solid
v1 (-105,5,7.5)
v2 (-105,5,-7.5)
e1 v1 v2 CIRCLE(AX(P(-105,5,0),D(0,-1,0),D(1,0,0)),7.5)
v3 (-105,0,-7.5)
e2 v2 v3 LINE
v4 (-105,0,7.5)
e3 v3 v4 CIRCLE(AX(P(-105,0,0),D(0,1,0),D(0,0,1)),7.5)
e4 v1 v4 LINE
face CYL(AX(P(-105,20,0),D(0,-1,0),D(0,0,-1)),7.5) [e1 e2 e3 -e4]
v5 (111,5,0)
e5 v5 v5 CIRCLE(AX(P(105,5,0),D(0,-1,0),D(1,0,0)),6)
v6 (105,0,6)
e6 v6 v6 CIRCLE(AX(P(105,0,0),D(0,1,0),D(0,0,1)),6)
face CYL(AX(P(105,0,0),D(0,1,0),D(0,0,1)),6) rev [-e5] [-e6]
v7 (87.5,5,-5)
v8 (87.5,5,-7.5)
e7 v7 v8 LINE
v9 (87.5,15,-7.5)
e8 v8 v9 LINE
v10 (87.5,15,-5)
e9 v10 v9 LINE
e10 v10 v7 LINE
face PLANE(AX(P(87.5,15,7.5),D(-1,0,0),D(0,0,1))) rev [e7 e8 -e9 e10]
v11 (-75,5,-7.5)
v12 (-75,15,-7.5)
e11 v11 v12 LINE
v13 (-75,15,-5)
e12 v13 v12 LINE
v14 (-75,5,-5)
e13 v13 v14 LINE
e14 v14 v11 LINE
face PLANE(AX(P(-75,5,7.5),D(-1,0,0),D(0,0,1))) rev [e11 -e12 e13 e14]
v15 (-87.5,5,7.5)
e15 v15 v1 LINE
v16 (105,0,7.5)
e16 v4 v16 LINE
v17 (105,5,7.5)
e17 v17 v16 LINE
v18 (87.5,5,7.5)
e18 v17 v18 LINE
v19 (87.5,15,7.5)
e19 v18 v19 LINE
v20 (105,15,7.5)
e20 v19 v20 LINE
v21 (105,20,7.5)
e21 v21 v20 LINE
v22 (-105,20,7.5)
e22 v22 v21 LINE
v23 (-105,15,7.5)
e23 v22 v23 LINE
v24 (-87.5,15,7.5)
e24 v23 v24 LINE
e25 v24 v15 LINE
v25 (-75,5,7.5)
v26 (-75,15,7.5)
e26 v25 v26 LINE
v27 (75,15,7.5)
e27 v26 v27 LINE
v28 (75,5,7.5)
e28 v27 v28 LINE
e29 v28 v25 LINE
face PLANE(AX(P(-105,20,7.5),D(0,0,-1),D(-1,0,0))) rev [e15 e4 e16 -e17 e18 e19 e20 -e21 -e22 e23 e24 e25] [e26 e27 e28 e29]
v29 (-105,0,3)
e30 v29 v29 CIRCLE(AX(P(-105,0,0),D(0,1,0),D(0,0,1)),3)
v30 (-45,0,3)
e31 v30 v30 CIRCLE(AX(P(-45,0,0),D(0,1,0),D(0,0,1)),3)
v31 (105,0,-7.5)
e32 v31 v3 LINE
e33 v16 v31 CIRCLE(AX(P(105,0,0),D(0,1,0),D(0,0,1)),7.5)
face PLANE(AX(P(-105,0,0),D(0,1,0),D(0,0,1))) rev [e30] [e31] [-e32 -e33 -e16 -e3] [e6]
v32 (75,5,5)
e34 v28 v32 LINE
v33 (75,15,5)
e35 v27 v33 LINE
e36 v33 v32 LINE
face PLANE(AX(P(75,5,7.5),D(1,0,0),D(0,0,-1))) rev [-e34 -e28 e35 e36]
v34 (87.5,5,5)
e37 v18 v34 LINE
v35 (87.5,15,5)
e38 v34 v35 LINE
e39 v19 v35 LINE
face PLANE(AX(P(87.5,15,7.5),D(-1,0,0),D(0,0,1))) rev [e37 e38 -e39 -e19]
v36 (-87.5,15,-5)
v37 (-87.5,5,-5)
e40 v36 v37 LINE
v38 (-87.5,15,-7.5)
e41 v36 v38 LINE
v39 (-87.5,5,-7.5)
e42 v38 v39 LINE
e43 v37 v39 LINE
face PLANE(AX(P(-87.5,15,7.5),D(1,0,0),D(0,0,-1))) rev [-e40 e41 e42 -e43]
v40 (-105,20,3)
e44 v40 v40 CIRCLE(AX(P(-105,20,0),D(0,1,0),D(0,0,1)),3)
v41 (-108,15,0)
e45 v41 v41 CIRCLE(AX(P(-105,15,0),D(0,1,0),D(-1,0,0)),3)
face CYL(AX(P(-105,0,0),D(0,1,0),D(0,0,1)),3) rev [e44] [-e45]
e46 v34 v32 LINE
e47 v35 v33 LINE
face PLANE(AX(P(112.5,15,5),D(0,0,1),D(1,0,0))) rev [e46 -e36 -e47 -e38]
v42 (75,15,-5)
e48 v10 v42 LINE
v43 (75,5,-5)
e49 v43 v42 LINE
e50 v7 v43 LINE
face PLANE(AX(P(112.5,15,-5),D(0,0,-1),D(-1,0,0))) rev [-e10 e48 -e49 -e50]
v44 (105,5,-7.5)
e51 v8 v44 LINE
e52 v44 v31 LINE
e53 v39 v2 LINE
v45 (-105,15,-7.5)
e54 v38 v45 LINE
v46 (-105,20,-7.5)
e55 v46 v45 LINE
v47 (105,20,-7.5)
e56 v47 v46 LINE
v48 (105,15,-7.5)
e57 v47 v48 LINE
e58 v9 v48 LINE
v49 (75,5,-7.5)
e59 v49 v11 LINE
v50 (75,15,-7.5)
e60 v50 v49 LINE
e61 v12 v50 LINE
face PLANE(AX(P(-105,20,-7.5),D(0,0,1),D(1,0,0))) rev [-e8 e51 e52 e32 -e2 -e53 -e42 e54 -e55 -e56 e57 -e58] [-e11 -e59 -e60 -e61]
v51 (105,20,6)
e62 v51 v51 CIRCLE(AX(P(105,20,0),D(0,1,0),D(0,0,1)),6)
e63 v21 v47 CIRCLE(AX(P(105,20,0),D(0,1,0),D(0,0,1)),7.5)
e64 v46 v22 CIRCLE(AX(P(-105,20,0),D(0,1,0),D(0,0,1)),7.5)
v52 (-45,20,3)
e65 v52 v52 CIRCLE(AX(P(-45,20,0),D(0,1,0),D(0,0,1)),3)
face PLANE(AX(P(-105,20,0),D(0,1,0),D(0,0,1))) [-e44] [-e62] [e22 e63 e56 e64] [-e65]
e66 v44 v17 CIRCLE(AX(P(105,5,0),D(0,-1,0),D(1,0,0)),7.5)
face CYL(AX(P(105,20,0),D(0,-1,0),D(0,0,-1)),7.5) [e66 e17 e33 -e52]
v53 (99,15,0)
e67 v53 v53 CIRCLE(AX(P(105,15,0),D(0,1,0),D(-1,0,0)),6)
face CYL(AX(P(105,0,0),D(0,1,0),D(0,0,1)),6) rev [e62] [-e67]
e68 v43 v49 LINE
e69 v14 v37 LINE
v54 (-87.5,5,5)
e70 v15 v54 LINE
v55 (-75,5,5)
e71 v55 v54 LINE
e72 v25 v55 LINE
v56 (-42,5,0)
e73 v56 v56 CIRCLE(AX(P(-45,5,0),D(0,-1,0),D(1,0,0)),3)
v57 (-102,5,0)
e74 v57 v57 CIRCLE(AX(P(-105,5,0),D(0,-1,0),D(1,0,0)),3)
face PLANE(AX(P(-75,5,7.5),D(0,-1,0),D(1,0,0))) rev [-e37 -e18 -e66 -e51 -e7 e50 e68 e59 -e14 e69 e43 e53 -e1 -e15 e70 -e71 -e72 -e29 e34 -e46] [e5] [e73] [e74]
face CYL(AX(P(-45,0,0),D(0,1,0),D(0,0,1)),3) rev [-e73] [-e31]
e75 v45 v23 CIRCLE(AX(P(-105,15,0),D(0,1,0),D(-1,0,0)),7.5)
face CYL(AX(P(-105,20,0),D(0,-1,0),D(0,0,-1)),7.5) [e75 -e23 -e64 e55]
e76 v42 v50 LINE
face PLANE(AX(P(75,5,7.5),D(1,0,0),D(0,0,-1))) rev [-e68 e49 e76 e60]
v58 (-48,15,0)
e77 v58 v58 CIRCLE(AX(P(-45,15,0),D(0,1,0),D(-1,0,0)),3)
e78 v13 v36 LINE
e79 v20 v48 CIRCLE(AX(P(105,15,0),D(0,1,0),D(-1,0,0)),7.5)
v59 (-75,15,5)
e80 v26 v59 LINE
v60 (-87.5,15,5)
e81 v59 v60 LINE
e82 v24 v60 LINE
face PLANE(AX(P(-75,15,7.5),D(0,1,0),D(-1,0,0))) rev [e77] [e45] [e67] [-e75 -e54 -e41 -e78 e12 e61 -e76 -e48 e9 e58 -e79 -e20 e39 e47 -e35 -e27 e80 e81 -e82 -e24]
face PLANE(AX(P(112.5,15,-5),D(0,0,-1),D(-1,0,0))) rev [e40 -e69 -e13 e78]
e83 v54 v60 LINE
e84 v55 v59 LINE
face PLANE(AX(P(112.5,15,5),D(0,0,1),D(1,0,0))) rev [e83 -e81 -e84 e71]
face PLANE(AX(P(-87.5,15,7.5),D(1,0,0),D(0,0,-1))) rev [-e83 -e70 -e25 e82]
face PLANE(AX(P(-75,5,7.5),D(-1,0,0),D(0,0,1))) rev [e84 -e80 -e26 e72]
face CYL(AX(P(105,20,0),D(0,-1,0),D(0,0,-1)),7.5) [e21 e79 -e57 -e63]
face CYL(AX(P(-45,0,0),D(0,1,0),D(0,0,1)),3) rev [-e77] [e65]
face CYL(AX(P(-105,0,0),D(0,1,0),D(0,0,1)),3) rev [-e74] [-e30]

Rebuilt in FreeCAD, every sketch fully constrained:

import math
import FreeCAD as App
import Part
import Sketcher

doc = App.newDocument("Part")
body = doc.addObject("PartDesign::Body", "Body")

# Sketch on XZ plane
sketch1 = doc.addObject("Sketcher::SketchObject", "Sketch")
body.addObject(sketch1)
sketch1.AttachmentSupport = (doc.XZ_Plane, [""])
sketch1.MapMode = "FlatFace"
sketch1.addGeometry(Part.LineSegment(App.Vector(105, -8, 0), App.Vector(-105, -8, 0)), False)
sketch1.addGeometry(Part.ArcOfCircle(Part.Circle(App.Vector(-105, 0, 0), App.Vector(0, 0, 1), 8), math.radians(90), math.radians(270)), False)
sketch1.addGeometry(Part.LineSegment(App.Vector(-105, 8, 0), App.Vector(105, 8, 0)), False)
sketch1.addGeometry(Part.ArcOfCircle(Part.Circle(App.Vector(105, 0, 0), App.Vector(0, 0, 1), 8), math.radians(-90), math.radians(90)), False)
sketch1.addConstraint(Sketcher.Constraint("Tangent", 0, 2, 1, 2))
sketch1.addConstraint(Sketcher.Constraint("Tangent", 1, 1, 2, 1))
sketch1.addConstraint(Sketcher.Constraint("Tangent", 2, 2, 3, 2))
sketch1.addConstraint(Sketcher.Constraint("Tangent", 3, 1, 0, 1))
sketch1.addConstraint(Sketcher.Constraint("Horizontal", 0))
sketch1.addConstraint(Sketcher.Constraint("Horizontal", 2))
sketch1.addConstraint(Sketcher.Constraint("Symmetric", 1, 3, 3, 3, -1, 1))
sketch1.addConstraint(Sketcher.Constraint("Radius", 1, 7.5))
sketch1.addConstraint(Sketcher.Constraint("DistanceX", 0, 2, 0, 1, 210.0))
pad1 = doc.addObject("PartDesign::Pad", "Pad")
body.addObject(pad1)
pad1.Profile = sketch1
pad1.Length = 20
pad1.Reversed = True

# Sketch on XY plane
sketch2 = doc.addObject("Sketcher::SketchObject", "Sketch001")
body.addObject(sketch2)
sketch2.AttachmentSupport = (doc.XY_Plane, [""])
sketch2.MapMode = "FlatFace"
sketch2.AttachmentOffset = App.Placement(App.Vector(0, 0, -7.5), App.Rotation())
sketch2.addGeometry(Part.LineSegment(App.Vector(75, 15, 0), App.Vector(75, 5, 0)), False)
sketch2.addGeometry(Part.LineSegment(App.Vector(75, 5, 0), App.Vector(-75, 5, 0)), False)
sketch2.addGeometry(Part.LineSegment(App.Vector(-75, 5, 0), App.Vector(-75, 15, 0)), False)
sketch2.addGeometry(Part.LineSegment(App.Vector(-75, 15, 0), App.Vector(75, 15, 0)), False)
sketch2.addConstraint(Sketcher.Constraint("Coincident", 0, 2, 1, 1))
sketch2.addConstraint(Sketcher.Constraint("Coincident", 1, 2, 2, 1))
sketch2.addConstraint(Sketcher.Constraint("Coincident", 2, 2, 3, 1))
sketch2.addConstraint(Sketcher.Constraint("Coincident", 3, 2, 0, 1))
sketch2.addConstraint(Sketcher.Constraint("Vertical", 0))
sketch2.addConstraint(Sketcher.Constraint("Horizontal", 1))
sketch2.addConstraint(Sketcher.Constraint("Vertical", 2))
sketch2.addConstraint(Sketcher.Constraint("Horizontal", 3))
sketch2.addConstraint(Sketcher.Constraint("DistanceX", 1, 2, 1, 1, 150.0))
sketch2.addConstraint(Sketcher.Constraint("DistanceY", 0, 2, 0, 1, 10.0))
sketch2.addConstraint(Sketcher.Constraint("DistanceX", -1, 1, 0, 2, 75.0))
sketch2.addConstraint(Sketcher.Constraint("DistanceY", -1, 1, 0, 2, 5.0))
pocket1 = doc.addObject("PartDesign::Pocket", "Pocket")
body.addObject(pocket1)
pocket1.Profile = sketch2
pocket1.Type = "ThroughAll"
pocket1.Reversed = True

# Sketch on XY plane
sketch3 = doc.addObject("Sketcher::SketchObject", "Sketch002")
body.addObject(sketch3)
sketch3.AttachmentSupport = (doc.XY_Plane, [""])
sketch3.MapMode = "FlatFace"
sketch3.AttachmentOffset = App.Placement(App.Vector(0, 0, -7.5), App.Rotation())
sketch3.addGeometry(Part.LineSegment(App.Vector(-88, 15, 0), App.Vector(-88, 5, 0)), False)
sketch3.addGeometry(Part.LineSegment(App.Vector(-88, 5, 0), App.Vector(-112, 5, 0)), False)
sketch3.addGeometry(Part.LineSegment(App.Vector(-112, 5, 0), App.Vector(-112, 15, 0)), False)
sketch3.addGeometry(Part.LineSegment(App.Vector(-112, 15, 0), App.Vector(-88, 15, 0)), False)
sketch3.addGeometry(Part.LineSegment(App.Vector(112, 15, 0), App.Vector(112, 5, 0)), False)
sketch3.addGeometry(Part.LineSegment(App.Vector(112, 5, 0), App.Vector(88, 5, 0)), False)
sketch3.addGeometry(Part.LineSegment(App.Vector(88, 5, 0), App.Vector(88, 15, 0)), False)
sketch3.addGeometry(Part.LineSegment(App.Vector(88, 15, 0), App.Vector(112, 15, 0)), False)
sketch3.addConstraint(Sketcher.Constraint("Coincident", 0, 2, 1, 1))
sketch3.addConstraint(Sketcher.Constraint("Coincident", 1, 2, 2, 1))
sketch3.addConstraint(Sketcher.Constraint("Coincident", 2, 2, 3, 1))
sketch3.addConstraint(Sketcher.Constraint("Coincident", 3, 2, 0, 1))
sketch3.addConstraint(Sketcher.Constraint("Coincident", 4, 2, 5, 1))
sketch3.addConstraint(Sketcher.Constraint("Coincident", 5, 2, 6, 1))
sketch3.addConstraint(Sketcher.Constraint("Coincident", 6, 2, 7, 1))
sketch3.addConstraint(Sketcher.Constraint("Coincident", 7, 2, 4, 1))
sketch3.addConstraint(Sketcher.Constraint("Vertical", 0))
sketch3.addConstraint(Sketcher.Constraint("Horizontal", 1))
sketch3.addConstraint(Sketcher.Constraint("Vertical", 2))
sketch3.addConstraint(Sketcher.Constraint("Horizontal", 3))
sketch3.addConstraint(Sketcher.Constraint("Vertical", 4))
sketch3.addConstraint(Sketcher.Constraint("Horizontal", 5))
sketch3.addConstraint(Sketcher.Constraint("Vertical", 6))
sketch3.addConstraint(Sketcher.Constraint("Horizontal", 7))
sketch3.addConstraint(Sketcher.Constraint("Symmetric", 1, 2, 4, 2, -2))
sketch3.addConstraint(Sketcher.Constraint("Symmetric", 3, 2, 6, 2, -2))
sketch3.addConstraint(Sketcher.Constraint("DistanceX", 1, 2, 1, 1, 25.0))
sketch3.addConstraint(Sketcher.Constraint("DistanceY", 0, 2, 0, 1, 10.0))
sketch3.addConstraint(Sketcher.Constraint("DistanceY", -1, 1, 0, 2, 5.0))
sketch3.addConstraint(Sketcher.Constraint("DistanceX", 0, 2, 4, 2, 200.0))
pocket2 = doc.addObject("PartDesign::Pocket", "Pocket001")
body.addObject(pocket2)
pocket2.Profile = sketch3
pocket2.Type = "ThroughAll"
pocket2.Reversed = True

# Sketch on YZ plane
sketch4 = doc.addObject("Sketcher::SketchObject", "Sketch003")
body.addObject(sketch4)
sketch4.AttachmentSupport = (doc.YZ_Plane, [""])
sketch4.MapMode = "FlatFace"
sketch4.AttachmentOffset = App.Placement(App.Vector(0, 0, -87.5), App.Rotation())
sketch4.addGeometry(Part.LineSegment(App.Vector(15, -5, 0), App.Vector(5, -5, 0)), False)
sketch4.addGeometry(Part.LineSegment(App.Vector(5, -5, 0), App.Vector(5, 5, 0)), False)
sketch4.addGeometry(Part.LineSegment(App.Vector(5, 5, 0), App.Vector(15, 5, 0)), False)
sketch4.addGeometry(Part.LineSegment(App.Vector(15, 5, 0), App.Vector(15, -5, 0)), False)
sketch4.addConstraint(Sketcher.Constraint("Coincident", 0, 2, 1, 1))
sketch4.addConstraint(Sketcher.Constraint("Coincident", 1, 2, 2, 1))
sketch4.addConstraint(Sketcher.Constraint("Coincident", 2, 2, 3, 1))
sketch4.addConstraint(Sketcher.Constraint("Coincident", 3, 2, 0, 1))
sketch4.addConstraint(Sketcher.Constraint("Horizontal", 0))
sketch4.addConstraint(Sketcher.Constraint("Vertical", 1))
sketch4.addConstraint(Sketcher.Constraint("Horizontal", 2))
sketch4.addConstraint(Sketcher.Constraint("Vertical", 3))
sketch4.addConstraint(Sketcher.Constraint("Equal", 2, 1))
sketch4.addConstraint(Sketcher.Constraint("DistanceX", 0, 2, 0, 1, 10.0))
sketch4.addConstraint(Sketcher.Constraint("DistanceX", -1, 1, 0, 2, 5.0))
sketch4.addConstraint(Sketcher.Constraint("DistanceY", 0, 2, -1, 1, 5.0))
pocket3 = doc.addObject("PartDesign::Pocket", "Pocket002")
body.addObject(pocket3)
pocket3.Profile = sketch4
pocket3.Type = "ThroughAll"
pocket3.Reversed = True

# Sketch on XZ plane
sketch5 = doc.addObject("Sketcher::SketchObject", "Sketch004")
body.addObject(sketch5)
sketch5.AttachmentSupport = (doc.XZ_Plane, [""])
sketch5.MapMode = "FlatFace"
sketch5.AttachmentOffset = App.Placement(App.Vector(0, 0, -20), App.Rotation())
sketch5.addGeometry(Part.Circle(App.Vector(-105, 0, 0), App.Vector(0, 0, 1), 3), False)
sketch5.addGeometry(Part.Circle(App.Vector(105, 0, 0), App.Vector(0, 0, 1), 6), False)
sketch5.addConstraint(Sketcher.Constraint("Symmetric", 0, 3, 1, 3, -1, 1))
sketch5.addConstraint(Sketcher.Constraint("PointOnObject", 0, 3, -1))
sketch5.addConstraint(Sketcher.Constraint("Diameter", 0, 6.0))
sketch5.addConstraint(Sketcher.Constraint("Diameter", 1, 12.0))
sketch5.addConstraint(Sketcher.Constraint("DistanceX", 0, 3, -1, 1, 105.0))
pocket4 = doc.addObject("PartDesign::Pocket", "Pocket003")
body.addObject(pocket4)
pocket4.Profile = sketch5
pocket4.Type = "ThroughAll"
pocket4.Reversed = True

# Sketch on XZ plane
sketch6 = doc.addObject("Sketcher::SketchObject", "Sketch005")
body.addObject(sketch6)
sketch6.AttachmentSupport = (doc.XZ_Plane, [""])
sketch6.MapMode = "FlatFace"
sketch6.AttachmentOffset = App.Placement(App.Vector(0, 0, -20), App.Rotation())
sketch6.addGeometry(Part.Circle(App.Vector(-45, 0, 0), App.Vector(0, 0, 1), 3), False)
sketch6.addConstraint(Sketcher.Constraint("PointOnObject", 0, 3, -1))
sketch6.addConstraint(Sketcher.Constraint("Diameter", 0, 6.0))
sketch6.addConstraint(Sketcher.Constraint("DistanceX", 0, 3, -1, 1, 45.0))
pocket5 = doc.addObject("PartDesign::Pocket", "Pocket004")
body.addObject(pocket5)
pocket5.Profile = sketch6
pocket5.Type = "ThroughAll"
pocket5.Reversed = True

doc.recompute()
